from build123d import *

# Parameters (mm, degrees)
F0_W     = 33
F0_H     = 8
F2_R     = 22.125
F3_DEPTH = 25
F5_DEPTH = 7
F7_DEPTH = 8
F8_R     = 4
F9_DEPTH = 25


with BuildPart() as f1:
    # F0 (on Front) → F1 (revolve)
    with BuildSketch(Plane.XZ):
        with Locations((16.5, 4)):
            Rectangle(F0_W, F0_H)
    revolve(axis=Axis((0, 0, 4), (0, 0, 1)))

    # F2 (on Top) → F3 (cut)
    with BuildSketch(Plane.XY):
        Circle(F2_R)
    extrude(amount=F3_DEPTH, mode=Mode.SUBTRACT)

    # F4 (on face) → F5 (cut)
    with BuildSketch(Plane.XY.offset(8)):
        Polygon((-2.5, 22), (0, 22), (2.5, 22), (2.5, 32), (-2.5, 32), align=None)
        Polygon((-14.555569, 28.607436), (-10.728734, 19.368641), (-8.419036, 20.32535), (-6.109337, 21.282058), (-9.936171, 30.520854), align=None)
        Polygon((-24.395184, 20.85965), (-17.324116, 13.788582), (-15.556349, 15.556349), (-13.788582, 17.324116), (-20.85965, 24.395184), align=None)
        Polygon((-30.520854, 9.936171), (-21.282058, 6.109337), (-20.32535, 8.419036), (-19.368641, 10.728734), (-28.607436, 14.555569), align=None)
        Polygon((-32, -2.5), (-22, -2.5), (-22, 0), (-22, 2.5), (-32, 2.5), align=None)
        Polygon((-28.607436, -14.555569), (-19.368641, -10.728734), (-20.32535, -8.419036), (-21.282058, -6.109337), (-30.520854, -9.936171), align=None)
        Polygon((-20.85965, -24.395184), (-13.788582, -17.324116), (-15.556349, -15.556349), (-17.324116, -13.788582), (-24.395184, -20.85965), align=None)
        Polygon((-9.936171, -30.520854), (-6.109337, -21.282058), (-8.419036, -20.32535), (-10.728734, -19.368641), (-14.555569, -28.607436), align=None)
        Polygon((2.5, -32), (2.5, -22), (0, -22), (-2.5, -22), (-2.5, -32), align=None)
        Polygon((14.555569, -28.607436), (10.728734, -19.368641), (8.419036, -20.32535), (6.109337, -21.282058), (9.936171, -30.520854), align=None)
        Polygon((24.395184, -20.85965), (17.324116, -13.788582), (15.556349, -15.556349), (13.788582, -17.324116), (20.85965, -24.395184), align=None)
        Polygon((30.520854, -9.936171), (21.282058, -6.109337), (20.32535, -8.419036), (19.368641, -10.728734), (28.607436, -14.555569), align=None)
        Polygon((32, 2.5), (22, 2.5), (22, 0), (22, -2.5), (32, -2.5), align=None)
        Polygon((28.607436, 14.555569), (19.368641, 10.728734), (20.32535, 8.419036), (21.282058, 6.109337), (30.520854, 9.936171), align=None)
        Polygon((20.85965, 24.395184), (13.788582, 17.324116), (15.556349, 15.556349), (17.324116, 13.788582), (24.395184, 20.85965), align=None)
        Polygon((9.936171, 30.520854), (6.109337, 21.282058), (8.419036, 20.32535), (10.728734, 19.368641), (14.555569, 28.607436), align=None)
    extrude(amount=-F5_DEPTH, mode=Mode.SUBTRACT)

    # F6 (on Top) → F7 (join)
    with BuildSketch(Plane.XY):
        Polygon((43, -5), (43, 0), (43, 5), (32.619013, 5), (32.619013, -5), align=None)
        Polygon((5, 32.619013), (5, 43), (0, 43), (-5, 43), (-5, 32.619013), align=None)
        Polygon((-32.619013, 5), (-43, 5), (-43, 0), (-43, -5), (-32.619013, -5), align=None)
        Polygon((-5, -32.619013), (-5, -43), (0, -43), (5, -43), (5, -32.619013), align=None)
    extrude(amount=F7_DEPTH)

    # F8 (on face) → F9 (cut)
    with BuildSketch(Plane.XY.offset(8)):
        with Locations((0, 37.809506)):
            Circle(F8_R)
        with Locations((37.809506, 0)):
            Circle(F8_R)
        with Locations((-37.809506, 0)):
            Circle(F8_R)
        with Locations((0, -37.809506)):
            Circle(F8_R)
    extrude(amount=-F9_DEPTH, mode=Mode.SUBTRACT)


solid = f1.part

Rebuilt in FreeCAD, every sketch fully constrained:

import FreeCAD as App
import Part
import Sketcher
from FreeCAD import Vector
Q = App.Units.Quantity

doc = App.newDocument("Part")
body = doc.addObject("PartDesign::Body", "Body")

sketch1 = body.newObject("Sketcher::SketchObject", "Sketch")
sketch1.AttachmentSupport = (doc.getObject("XZ_Plane"), [""])
sketch1.MapMode = "FlatFace"
sketch1.addGeometry(Part.LineSegment(Vector(0, 8, 0), Vector(0, 0, 0)), False)
sketch1.addGeometry(Part.LineSegment(Vector(0, 0, 0), Vector(33, 0, 0)), False)
sketch1.addGeometry(Part.LineSegment(Vector(33, 0, 0), Vector(33, 8, 0)), False)
sketch1.addGeometry(Part.LineSegment(Vector(33, 8, 0), Vector(0, 8, 0)), False)
sketch1.addConstraint(Sketcher.Constraint("Coincident", 0, 2, 1, 1))
sketch1.addConstraint(Sketcher.Constraint("Coincident", 1, 2, 2, 1))
sketch1.addConstraint(Sketcher.Constraint("Coincident", 2, 2, 3, 1))
sketch1.addConstraint(Sketcher.Constraint("Coincident", 3, 2, 0, 1))
sketch1.addConstraint(Sketcher.Constraint("Vertical", 0))
sketch1.addConstraint(Sketcher.Constraint("Horizontal", 1))
sketch1.addConstraint(Sketcher.Constraint("Vertical", 2))
sketch1.addConstraint(Sketcher.Constraint("Horizontal", 3))
sketch1.addConstraint(Sketcher.Constraint("Coincident", 0, 2, -1, 1))
sketch1.addConstraint(Sketcher.Constraint("DistanceX", 1, 1, 1, 2, Q("33 mm")))
sketch1.addConstraint(Sketcher.Constraint("DistanceY", 0, 2, 0, 1, Q("8 mm")))
revolution = body.newObject("PartDesign::Revolution", "Revolution")
revolution.Profile = sketch1
revolution.ReferenceAxis = (sketch1, ["V_Axis"])
revolution.Angle = 360

sketch2 = body.newObject("Sketcher::SketchObject", "Sketch001")
sketch2.AttachmentSupport = (doc.getObject("XY_Plane"), [""])
sketch2.MapMode = "FlatFace"
sketch2.addGeometry(Part.Circle(Vector(0, 0, 0), Vector(0, 0, 1), 22.125), False)
sketch2.addConstraint(Sketcher.Constraint("Coincident", 0, 3, -1, 1))
sketch2.addConstraint(Sketcher.Constraint("Diameter", 0, Q("44.25 mm")))
pocket1 = body.newObject("PartDesign::Pocket", "Pocket")
pocket1.Profile = sketch2
pocket1.Length = 25
pocket1.Reversed = True

sketch3 = body.newObject("Sketcher::SketchObject", "Sketch002")
sketch3.AttachmentSupport = (doc.getObject("XY_Plane"), [""])
sketch3.MapMode = "FlatFace"
sketch3.AttachmentOffset = App.Placement(Vector(0, 0, 8), App.Rotation())
sketch3.addGeometry(Part.LineSegment(Vector(-2.5, 22, 0), Vector(2.5, 22, 0)), False)
sketch3.addGeometry(Part.LineSegment(Vector(2.5, 22, 0), Vector(2.5, 32, 0)), False)
sketch3.addGeometry(Part.LineSegment(Vector(2.5, 32, 0), Vector(-2.5, 32, 0)), False)
sketch3.addGeometry(Part.LineSegment(Vector(-2.5, 32, 0), Vector(-2.5, 22, 0)), False)
sketch3.addGeometry(Part.LineSegment(Vector(-14.555569, 28.607436, 0), Vector(-10.728734, 19.368641, 0)), False)
sketch3.addGeometry(Part.LineSegment(Vector(-10.728734, 19.368641, 0), Vector(-8.419036, 20.32535, 0)), False)
sketch3.addGeometry(Part.LineSegment(Vector(-8.419036, 20.32535, 0), Vector(-6.109337, 21.282058, 0)), False)
sketch3.addGeometry(Part.LineSegment(Vector(-6.109337, 21.282058, 0), Vector(-9.936171, 30.520854, 0)), False)
sketch3.addGeometry(Part.LineSegment(Vector(-9.936171, 30.520854, 0), Vector(-14.555569, 28.607436, 0)), False)
sketch3.addGeometry(Part.LineSegment(Vector(-24.395184, 20.85965, 0), Vector(-17.324116, 13.788582, 0)), False)
sketch3.addGeometry(Part.LineSegment(Vector(-17.324116, 13.788582, 0), Vector(-13.788582, 17.324116, 0)), False)
sketch3.addGeometry(Part.LineSegment(Vector(-13.788582, 17.324116, 0), Vector(-20.85965, 24.395184, 0)), False)
sketch3.addGeometry(Part.LineSegment(Vector(-20.85965, 24.395184, 0), Vector(-24.395184, 20.85965, 0)), False)
sketch3.addGeometry(Part.LineSegment(Vector(-30.520854, 9.936171, 0), Vector(-21.282058, 6.109337, 0)), False)
sketch3.addGeometry(Part.LineSegment(Vector(-21.282058, 6.109337, 0), Vector(-20.32535, 8.419036, 0)), False)
sketch3.addGeometry(Part.LineSegment(Vector(-20.32535, 8.419036, 0), Vector(-19.368641, 10.728734, 0)), False)
sketch3.addGeometry(Part.LineSegment(Vector(-19.368641, 10.728734, 0), Vector(-28.607436, 14.555569, 0)), False)
sketch3.addGeometry(Part.LineSegment(Vector(-28.607436, 14.555569, 0), Vector(-30.520854, 9.936171, 0)), False)
sketch3.addGeometry(Part.LineSegment(Vector(-32, -2.5, 0), Vector(-22, -2.5, 0)), False)
sketch3.addGeometry(Part.LineSegment(Vector(-22, -2.5, 0), Vector(-22, 2.5, 0)), False)
sketch3.addGeometry(Part.LineSegment(Vector(-22, 2.5, 0), Vector(-32, 2.5, 0)), False)
sketch3.addGeometry(Part.LineSegment(Vector(-32, 2.5, 0), Vector(-32, -2.5, 0)), False)
sketch3.addGeometry(Part.LineSegment(Vector(-28.607436, -14.555569, 0), Vector(-19.368641, -10.728734, 0)), False)
sketch3.addGeometry(Part.LineSegment(Vector(-19.368641, -10.728734, 0), Vector(-20.32535, -8.419036, 0)), False)
sketch3.addGeometry(Part.LineSegment(Vector(-20.32535, -8.419036, 0), Vector(-21.282058, -6.109337, 0)), False)
sketch3.addGeometry(Part.LineSegment(Vector(-21.282058, -6.109337, 0), Vector(-30.520854, -9.936171, 0)), False)
sketch3.addGeometry(Part.LineSegment(Vector(-30.520854, -9.936171, 0), Vector(-28.607436, -14.555569, 0)), False)
sketch3.addGeometry(Part.LineSegment(Vector(-20.85965, -24.395184, 0), Vector(-13.788582, -17.324116, 0)), False)
sketch3.addGeometry(Part.LineSegment(Vector(-13.788582, -17.324116, 0), Vector(-17.324116, -13.788582, 0)), False)
sketch3.addGeometry(Part.LineSegment(Vector(-17.324116, -13.788582, 0), Vector(-24.395184, -20.85965, 0)), False)
sketch3.addGeometry(Part.LineSegment(Vector(-24.395184, -20.85965, 0), Vector(-20.85965, -24.395184, 0)), False)
sketch3.addGeometry(Part.LineSegment(Vector(-9.936171, -30.520854, 0), Vector(-6.109337, -21.282058, 0)), False)
sketch3.addGeometry(Part.LineSegment(Vector(-6.109337, -21.282058, 0), Vector(-8.419036, -20.32535, 0)), False)
sketch3.addGeometry(Part.LineSegment(Vector(-8.419036, -20.32535, 0), Vector(-10.728734, -19.368641, 0)), False)
sketch3.addGeometry(Part.LineSegment(Vector(-10.728734, -19.368641, 0), Vector(-14.555569, -28.607436, 0)), False)
sketch3.addGeometry(Part.LineSegment(Vector(-14.555569, -28.607436, 0), Vector(-9.936171, -30.520854, 0)), False)
sketch3.addGeometry(Part.LineSegment(Vector(2.5, -32, 0), Vector(2.5, -22, 0)), False)
sketch3.addGeometry(Part.LineSegment(Vector(2.5, -22, 0), Vector(-2.5, -22, 0)), False)
sketch3.addGeometry(Part.LineSegment(Vector(-2.5, -22, 0), Vector(-2.5, -32, 0)), False)
sketch3.addGeometry(Part.LineSegment(Vector(-2.5, -32, 0), Vector(2.5, -32, 0)), False)
sketch3.addGeometry(Part.LineSegment(Vector(14.555569, -28.607436, 0), Vector(10.728734, -19.368641, 0)), False)
sketch3.addGeometry(Part.LineSegment(Vector(10.728734, -19.368641, 0), Vector(8.419036, -20.32535, 0)), False)
sketch3.addGeometry(Part.LineSegment(Vector(8.419036, -20.32535, 0), Vector(6.109337, -21.282058, 0)), False)
sketch3.addGeometry(Part.LineSegment(Vector(6.109337, -21.282058, 0), Vector(9.936171, -30.520854, 0)), False)
sketch3.addGeometry(Part.LineSegment(Vector(9.936171, -30.520854, 0), Vector(14.555569, -28.607436, 0)), False)
sketch3.addGeometry(Part.LineSegment(Vector(24.395184, -20.85965, 0), Vector(17.324116, -13.788582, 0)), False)
sketch3.addGeometry(Part.LineSegment(Vector(17.324116, -13.788582, 0), Vector(13.788582, -17.324116, 0)), False)
sketch3.addGeometry(Part.LineSegment(Vector(13.788582, -17.324116, 0), Vector(20.85965, -24.395184, 0)), False)
sketch3.addGeometry(Part.LineSegment(Vector(20.85965, -24.395184, 0), Vector(24.395184, -20.85965, 0)), False)
sketch3.addGeometry(Part.LineSegment(Vector(30.520854, -9.936171, 0), Vector(21.282058, -6.109337, 0)), False)
sketch3.addGeometry(Part.LineSegment(Vector(21.282058, -6.109337, 0), Vector(20.32535, -8.419036, 0)), False)
sketch3.addGeometry(Part.LineSegment(Vector(20.32535, -8.419036, 0), Vector(19.368641, -10.728734, 0)), False)
sketch3.addGeometry(Part.LineSegment(Vector(19.368641, -10.728734, 0), Vector(28.607436, -14.555569, 0)), False)
sketch3.addGeometry(Part.LineSegment(Vector(28.607436, -14.555569, 0), Vector(30.520854, -9.936171, 0)), False)
sketch3.addGeometry(Part.LineSegment(Vector(32, 2.5, 0), Vector(22, 2.5, 0)), False)
sketch3.addGeometry(Part.LineSegment(Vector(22, 2.5, 0), Vector(22, -2.5, 0)), False)
sketch3.addGeometry(Part.LineSegment(Vector(22, -2.5, 0), Vector(32, -2.5, 0)), False)
sketch3.addGeometry(Part.LineSegment(Vector(32, -2.5, 0), Vector(32, 2.5, 0)), False)
sketch3.addGeometry(Part.LineSegment(Vector(28.607436, 14.555569, 0), Vector(19.368641, 10.728734, 0)), False)
sketch3.addGeometry(Part.LineSegment(Vector(19.368641, 10.728734, 0), Vector(20.32535, 8.419036, 0)), False)
sketch3.addGeometry(Part.LineSegment(Vector(20.32535, 8.419036, 0), Vector(21.282058, 6.109337, 0)), False)
sketch3.addGeometry(Part.LineSegment(Vector(21.282058, 6.109337, 0), Vector(30.520854, 9.936171, 0)), False)
sketch3.addGeometry(Part.LineSegment(Vector(30.520854, 9.936171, 0), Vector(28.607436, 14.555569, 0)), False)
sketch3.addGeometry(Part.LineSegment(Vector(20.85965, 24.395184, 0), Vector(13.788582, 17.324116, 0)), False)
sketch3.addGeometry(Part.LineSegment(Vector(13.788582, 17.324116, 0), Vector(17.324116, 13.788582, 0)), False)
sketch3.addGeometry(Part.LineSegment(Vector(17.324116, 13.788582, 0), Vector(24.395184, 20.85965, 0)), False)
sketch3.addGeometry(Part.LineSegment(Vector(24.395184, 20.85965, 0), Vector(20.85965, 24.395184, 0)), False)
sketch3.addGeometry(Part.LineSegment(Vector(9.936171, 30.520854, 0), Vector(6.109337, 21.282058, 0)), False)
sketch3.addGeometry(Part.LineSegment(Vector(6.109337, 21.282058, 0), Vector(8.419036, 20.32535, 0)), False)
sketch3.addGeometry(Part.LineSegment(Vector(8.419036, 20.32535, 0), Vector(10.728734, 19.368641, 0)), False)
sketch3.addGeometry(Part.LineSegment(Vector(10.728734, 19.368641, 0), Vector(14.555569, 28.607436, 0)), False)
sketch3.addGeometry(Part.LineSegment(Vector(14.555569, 28.607436, 0), Vector(9.936171, 30.520854, 0)), False)
sketch3.addConstraint(Sketcher.Constraint("Coincident", 0, 2, 1, 1))
sketch3.addConstraint(Sketcher.Constraint("Coincident", 1, 2, 2, 1))
sketch3.addConstraint(Sketcher.Constraint("Coincident", 2, 2, 3, 1))
sketch3.addConstraint(Sketcher.Constraint("Coincident", 3, 2, 0, 1))
sketch3.addConstraint(Sketcher.Constraint("Coincident", 4, 2, 5, 1))
sketch3.addConstraint(Sketcher.Constraint("Coincident", 5, 2, 6, 1))
sketch3.addConstraint(Sketcher.Constraint("Coincident", 6, 2, 7, 1))
sketch3.addConstraint(Sketcher.Constraint("Coincident", 7, 2, 8, 1))
sketch3.addConstraint(Sketcher.Constraint("Coincident", 8, 2, 4, 1))
sketch3.addConstraint(Sketcher.Constraint("Coincident", 9, 2, 10, 1))
sketch3.addConstraint(Sketcher.Constraint("Coincident", 10, 2, 11, 1))
sketch3.addConstraint(Sketcher.Constraint("Coincident", 11, 2, 12, 1))
sketch3.addConstraint(Sketcher.Constraint("Coincident", 12, 2, 9, 1))
sketch3.addConstraint(Sketcher.Constraint("Coincident", 13, 2, 14, 1))
sketch3.addConstraint(Sketcher.Constraint("Coincident", 14, 2, 15, 1))
sketch3.addConstraint(Sketcher.Constraint("Coincident", 15, 2, 16, 1))
sketch3.addConstraint(Sketcher.Constraint("Coincident", 16, 2, 17, 1))
sketch3.addConstraint(Sketcher.Constraint("Coincident", 17, 2, 13, 1))
sketch3.addConstraint(Sketcher.Constraint("Coincident", 18, 2, 19, 1))
sketch3.addConstraint(Sketcher.Constraint("Coincident", 19, 2, 20, 1))
sketch3.addConstraint(Sketcher.Constraint("Coincident", 20, 2, 21, 1))
sketch3.addConstraint(Sketcher.Constraint("Coincident", 21, 2, 18, 1))
sketch3.addConstraint(Sketcher.Constraint("Coincident", 22, 2, 23, 1))
sketch3.addConstraint(Sketcher.Constraint("Coincident", 23, 2, 24, 1))
sketch3.addConstraint(Sketcher.Constraint("Coincident", 24, 2, 25, 1))
sketch3.addConstraint(Sketcher.Constraint("Coincident", 25, 2, 26, 1))
sketch3.addConstraint(Sketcher.Constraint("Coincident", 26, 2, 22, 1))
sketch3.addConstraint(Sketcher.Constraint("Coincident", 27, 2, 28, 1))
sketch3.addConstraint(Sketcher.Constraint("Coincident", 28, 2, 29, 1))
sketch3.addConstraint(Sketcher.Constraint("Coincident", 29, 2, 30, 1))
sketch3.addConstraint(Sketcher.Constraint("Coincident", 30, 2, 27, 1))
sketch3.addConstraint(Sketcher.Constraint("Coincident", 31, 2, 32, 1))
sketch3.addConstraint(Sketcher.Constraint("Coincident", 32, 2, 33, 1))
sketch3.addConstraint(Sketcher.Constraint("Coincident", 33, 2, 34, 1))
sketch3.addConstraint(Sketcher.Constraint("Coincident", 34, 2, 35, 1))
sketch3.addConstraint(Sketcher.Constraint("Coincident", 35, 2, 31, 1))
sketch3.addConstraint(Sketcher.Constraint("Coincident", 36, 2, 37, 1))
sketch3.addConstraint(Sketcher.Constraint("Coincident", 37, 2, 38, 1))
sketch3.addConstraint(Sketcher.Constraint("Coincident", 38, 2, 39, 1))
sketch3.addConstraint(Sketcher.Constraint("Coincident", 39, 2, 36, 1))
sketch3.addConstraint(Sketcher.Constraint("Coincident", 40, 2, 41, 1))
sketch3.addConstraint(Sketcher.Constraint("Coincident", 41, 2, 42, 1))
sketch3.addConstraint(Sketcher.Constraint("Coincident", 42, 2, 43, 1))
sketch3.addConstraint(Sketcher.Constraint("Coincident", 43, 2, 44, 1))
sketch3.addConstraint(Sketcher.Constraint("Coincident", 44, 2, 40, 1))
sketch3.addConstraint(Sketcher.Constraint("Coincident", 45, 2, 46, 1))
sketch3.addConstraint(Sketcher.Constraint("Coincident", 46, 2, 47, 1))
sketch3.addConstraint(Sketcher.Constraint("Coincident", 47, 2, 48, 1))
sketch3.addConstraint(Sketcher.Constraint("Coincident", 48, 2, 45, 1))
sketch3.addConstraint(Sketcher.Constraint("Coincident", 49, 2, 50, 1))
sketch3.addConstraint(Sketcher.Constraint("Coincident", 50, 2, 51, 1))
sketch3.addConstraint(Sketcher.Constraint("Coincident", 51, 2, 52, 1))
sketch3.addConstraint(Sketcher.Constraint("Coincident", 52, 2, 53, 1))
sketch3.addConstraint(Sketcher.Constraint("Coincident", 53, 2, 49, 1))
sketch3.addConstraint(Sketcher.Constraint("Coincident", 54, 2, 55, 1))
sketch3.addConstraint(Sketcher.Constraint("Coincident", 55, 2, 56, 1))
sketch3.addConstraint(Sketcher.Constraint("Coincident", 56, 2, 57, 1))
sketch3.addConstraint(Sketcher.Constraint("Coincident", 57, 2, 54, 1))
sketch3.addConstraint(Sketcher.Constraint("Coincident", 58, 2, 59, 1))
sketch3.addConstraint(Sketcher.Constraint("Coincident", 59, 2, 60, 1))
sketch3.addConstraint(Sketcher.Constraint("Coincident", 60, 2, 61, 1))
sketch3.addConstraint(Sketcher.Constraint("Coincident", 61, 2, 62, 1))
sketch3.addConstraint(Sketcher.Constraint("Coincident", 62, 2, 58, 1))
sketch3.addConstraint(Sketcher.Constraint("Coincident", 63, 2, 64, 1))
sketch3.addConstraint(Sketcher.Constraint("Coincident", 64, 2, 65, 1))
sketch3.addConstraint(Sketcher.Constraint("Coincident", 65, 2, 66, 1))
sketch3.addConstraint(Sketcher.Constraint("Coincident", 66, 2, 63, 1))
sketch3.addConstraint(Sketcher.Constraint("Coincident", 67, 2, 68, 1))
sketch3.addConstraint(Sketcher.Constraint("Coincident", 68, 2, 69, 1))
sketch3.addConstraint(Sketcher.Constraint("Coincident", 69, 2, 70, 1))
sketch3.addConstraint(Sketcher.Constraint("Coincident", 70, 2, 71, 1))
sketch3.addConstraint(Sketcher.Constraint("Coincident", 71, 2, 67, 1))
sketch3.addConstraint(Sketcher.Constraint("Horizontal", 0))
sketch3.addConstraint(Sketcher.Constraint("Vertical", 1))
sketch3.addConstraint(Sketcher.Constraint("Horizontal", 2))
sketch3.addConstraint(Sketcher.Constraint("Vertical", 3))
sketch3.addConstraint(Sketcher.Constraint("Horizontal", 18))
sketch3.addConstraint(Sketcher.Constraint("Vertical", 19))
sketch3.addConstraint(Sketcher.Constraint("Horizontal", 20))
sketch3.addConstraint(Sketcher.Constraint("Vertical", 21))
sketch3.addConstraint(Sketcher.Constraint("Vertical", 36))
sketch3.addConstraint(Sketcher.Constraint("Horizontal", 37))
sketch3.addConstraint(Sketcher.Constraint("Vertical", 38))
sketch3.addConstraint(Sketcher.Constraint("Horizontal", 39))
sketch3.addConstraint(Sketcher.Constraint("Horizontal", 54))
sketch3.addConstraint(Sketcher.Constraint("Vertical", 55))
sketch3.addConstraint(Sketcher.Constraint("Horizontal", 56))
sketch3.addConstraint(Sketcher.Constraint("Vertical", 57))
sketch3.addConstraint(Sketcher.Constraint("Symmetric", 3, 2, 36, 2, -1, 1))
sketch3.addConstraint(Sketcher.Constraint("Symmetric", 1, 2, 38, 2, -1, 1))
sketch3.addConstraint(Sketcher.Constraint("Symmetric", 4, 2, 40, 2, -1, 1))
sketch3.addConstraint(Sketcher.Constraint("Symmetric", 5, 2, 41, 2, -1, 1))
sketch3.addConstraint(Sketcher.Constraint("Symmetric", 6, 2, 42, 2, -1, 1))
sketch3.addConstraint(Sketcher.Constraint("Symmetric", 7, 2, 43, 2, -1, 1))
sketch3.addConstraint(Sketcher.Constraint("Symmetric", 8, 2, 44, 2, -1, 1))
sketch3.addConstraint(Sketcher.Constraint("Symmetric", 9, 2, 45, 2, -1, 1))
sketch3.addConstraint(Sketcher.Constraint("Symmetric", 10, 2, 46, 2, -1, 1))
sketch3.addConstraint(Sketcher.Constraint("Symmetric", 11, 2, 47, 2, -1, 1))
sketch3.addConstraint(Sketcher.Constraint("Symmetric", 12, 2, 48, 2, -1, 1))
sketch3.addConstraint(Sketcher.Constraint("Symmetric", 13, 2, 49, 2, -1, 1))
sketch3.addConstraint(Sketcher.Constraint("Symmetric", 14, 2, 50, 2, -1, 1))
sketch3.addConstraint(Sketcher.Constraint("Symmetric", 15, 2, 51, 2, -1, 1))
sketch3.addConstraint(Sketcher.Constraint("Symmetric", 16, 2, 52, 2, -1, 1))
sketch3.addConstraint(Sketcher.Constraint("Symmetric", 17, 2, 53, 2, -1, 1))
sketch3.addConstraint(Sketcher.Constraint("Symmetric", 18, 2, 54, 2, -1, 1))
sketch3.addConstraint(Sketcher.Constraint("Symmetric", 20, 2, 56, 2, -1, 1))
sketch3.addConstraint(Sketcher.Constraint("Symmetric", 22, 2, 58, 2, -1, 1))
sketch3.addConstraint(Sketcher.Constraint("Symmetric", 23, 2, 59, 2, -1, 1))
sketch3.addConstraint(Sketcher.Constraint("Symmetric", 24, 2, 60, 2, -1, 1))
sketch3.addConstraint(Sketcher.Constraint("Symmetric", 25, 2, 61, 2, -1, 1))
sketch3.addConstraint(Sketcher.Constraint("Symmetric", 26, 2, 62, 2, -1, 1))
sketch3.addConstraint(Sketcher.Constraint("Symmetric", 27, 2, 63, 2, -1, 1))
sketch3.addConstraint(Sketcher.Constraint("Symmetric", 28, 2, 64, 2, -1, 1))
sketch3.addConstraint(Sketcher.Constraint("Symmetric", 29, 2, 65, 2, -1, 1))
sketch3.addConstraint(Sketcher.Constraint("Symmetric", 30, 2, 66, 2, -1, 1))
sketch3.addConstraint(Sketcher.Constraint("Symmetric", 31, 2, 67, 2, -1, 1))
sketch3.addConstraint(Sketcher.Constraint("Symmetric", 32, 2, 68, 2, -1, 1))
sketch3.addConstraint(Sketcher.Constraint("Symmetric", 33, 2, 69, 2, -1, 1))
sketch3.addConstraint(Sketcher.Constraint("Symmetric", 34, 2, 70, 2, -1, 1))
sketch3.addConstraint(Sketcher.Constraint("Symmetric", 35, 2, 71, 2, -1, 1))
sketch3.addConstraint(Sketcher.Constraint("Symmetric", 33, 2, 40, 2, -2))
sketch3.addConstraint(Sketcher.Constraint("Symmetric", 32, 2, 41, 2, -2))
sketch3.addConstraint(Sketcher.Constraint("Symmetric", 31, 2, 42, 2, -2))
sketch3.addConstraint(Sketcher.Constraint("Symmetric", 35, 2, 43, 2, -2))
sketch3.addConstraint(Sketcher.Constraint("Symmetric", 34, 2, 44, 2, -2))
sketch3.addConstraint(Sketcher.Constraint("Symmetric", 28, 2, 45, 2, -2))
sketch3.addConstraint(Sketcher.Constraint("Symmetric", 27, 2, 46, 2, -2))
sketch3.addConstraint(Sketcher.Constraint("Symmetric", 30, 2, 47, 2, -2))
sketch3.addConstraint(Sketcher.Constraint("Symmetric", 29, 2, 48, 2, -2))
sketch3.addConstraint(Sketcher.Constraint("Symmetric", 24, 2, 49, 2, -2))
sketch3.addConstraint(Sketcher.Constraint("Symmetric", 23, 2, 50, 2, -2))
sketch3.addConstraint(Sketcher.Constraint("Symmetric", 22, 2, 51, 2, -2))
sketch3.addConstraint(Sketcher.Constraint("Symmetric", 26, 2, 52, 2, -2))
sketch3.addConstraint(Sketcher.Constraint("Symmetric", 25, 2, 53, 2, -2))
sketch3.addConstraint(Sketcher.Constraint("Perpendicular", 4, 5))
sketch3.addConstraint(Sketcher.Constraint("Parallel", 5, 6))
sketch3.addConstraint(Sketcher.Constraint("Perpendicular", 6, 7))
sketch3.addConstraint(Sketcher.Constraint("Perpendicular", 7, 8))
sketch3.addConstraint(Sketcher.Constraint("Perpendicular", 9, 10))
sketch3.addConstraint(Sketcher.Constraint("Perpendicular", 10, 11))
sketch3.addConstraint(Sketcher.Constraint("Perpendicular", 11, 12))
sketch3.addConstraint(Sketcher.Constraint("Perpendicular", 13, 14))
sketch3.addConstraint(Sketcher.Constraint("Parallel", 14, 15))
sketch3.addConstraint(Sketcher.Constraint("Perpendicular", 15, 16))
sketch3.addConstraint(Sketcher.Constraint("Perpendicular", 16, 17))
sketch3.addConstraint(Sketcher.Constraint("Parallel", 8, 22))
sketch3.addConstraint(Sketcher.Constraint("Parallel", 12, 27))
sketch3.addConstraint(Sketcher.Constraint("Horizontal", 20, 2, 54, 2))
sketch3.addConstraint(Sketcher.Constraint("Vertical", 1, 2, 36, 2))
sketch3.addConstraint(Sketcher.Constraint("Equal", 56, 1))
sketch3.addConstraint(Sketcher.Constraint("Equal", 39, 19))
sketch3.addConstraint(Sketcher.Constraint("Equal", 5, 6))
sketch3.addConstraint(Sketcher.Constraint("Equal", 7, 9))
sketch3.addConstraint(Sketcher.Constraint("Equal", 8, 10))
sketch3.addConstraint(Sketcher.Constraint("Equal", 11, 13))
sketch3.addConstraint(Sketcher.Constraint("Equal", 6, 14))
sketch3.addConstraint(Sketcher.Constraint("Equal", 14, 15))
sketch3.addConstraint(Sketcher.Constraint("DistanceX", 0, 1, 0, 2, Q("5 mm")))
sketch3.addConstraint(Sketcher.Constraint("DistanceX", 18, 1, 18, 2, Q("10 mm")))
sketch3.addConstraint(Sketcher.Constraint("Distance", 4, Q("10 mm")))
sketch3.addConstraint(Sketcher.Constraint("Distance", 8, Q("5.000001 mm")))
sketch3.addConstraint(Sketcher.Constraint("DistanceY", -1, 1, 0, 2, Q("22 mm")))
sketch3.addConstraint(Sketcher.Constraint("DistanceX", 18, 2, -1, 1, Q("22 mm")))
sketch3.addConstraint(Sketcher.Constraint("Angle", 4, Q("-67.499996 deg")))
sketch3.addConstraint(Sketcher.Constraint("DistanceY", -1, 1, 4, 2, Q("19.368641 mm")))
sketch3.addConstraint(Sketcher.Constraint("DistanceX", 7, 2, -1, 1, Q("9.936171 mm")))
sketch3.addConstraint(Sketcher.Constraint("DistanceX", 11, 2, -1, 1, Q("20.85965 mm")))
sketch3.addConstraint(Sketcher.Constraint("DistanceY", -1, 1, 12, 2, Q("20.85965 mm")))
sketch3.addConstraint(Sketcher.Constraint("DistanceX", 14, 2, -1, 1, Q("20.32535 mm")))
sketch3.addConstraint(Sketcher.Constraint("DistanceY", -1, 1, 16, 2, Q("14.555569 mm")))
pocket2 = body.newObject("PartDesign::Pocket", "Pocket001")
pocket2.Profile = sketch3
pocket2.Length = 7

sketch4 = body.newObject("Sketcher::SketchObject", "Sketch003")
sketch4.AttachmentSupport = (doc.getObject("XY_Plane"), [""])
sketch4.MapMode = "FlatFace"
sketch4.addGeometry(Part.LineSegment(Vector(43, -5, 0), Vector(43, 5, 0)), False)
sketch4.addGeometry(Part.LineSegment(Vector(43, 5, 0), Vector(32.619013, 5, 0)), False)
sketch4.addGeometry(Part.LineSegment(Vector(32.619013, 5, 0), Vector(32.619013, -5, 0)), False)
sketch4.addGeometry(Part.LineSegment(Vector(32.619013, -5, 0), Vector(43, -5, 0)), False)
sketch4.addGeometry(Part.LineSegment(Vector(5, 32.619013, 0), Vector(5, 43, 0)), False)
sketch4.addGeometry(Part.LineSegment(Vector(5, 43, 0), Vector(-5, 43, 0)), False)
sketch4.addGeometry(Part.LineSegment(Vector(-5, 43, 0), Vector(-5, 32.619013, 0)), False)
sketch4.addGeometry(Part.LineSegment(Vector(-5, 32.619013, 0), Vector(5, 32.619013, 0)), False)
sketch4.addGeometry(Part.LineSegment(Vector(-32.619013, 5, 0), Vector(-43, 5, 0)), False)
sketch4.addGeometry(Part.LineSegment(Vector(-43, 5, 0), Vector(-43, -5, 0)), False)
sketch4.addGeometry(Part.LineSegment(Vector(-43, -5, 0), Vector(-32.619013, -5, 0)), False)
sketch4.addGeometry(Part.LineSegment(Vector(-32.619013, -5, 0), Vector(-32.619013, 5, 0)), False)
sketch4.addGeometry(Part.LineSegment(Vector(-5, -32.619013, 0), Vector(-5, -43, 0)), False)
sketch4.addGeometry(Part.LineSegment(Vector(-5, -43, 0), Vector(5, -43, 0)), False)
sketch4.addGeometry(Part.LineSegment(Vector(5, -43, 0), Vector(5, -32.619013, 0)), False)
sketch4.addGeometry(Part.LineSegment(Vector(5, -32.619013, 0), Vector(-5, -32.619013, 0)), False)
sketch4.addConstraint(Sketcher.Constraint("Coincident", 0, 2, 1, 1))
sketch4.addConstraint(Sketcher.Constraint("Coincident", 1, 2, 2, 1))
sketch4.addConstraint(Sketcher.Constraint("Coincident", 2, 2, 3, 1))
sketch4.addConstraint(Sketcher.Constraint("Coincident", 3, 2, 0, 1))
sketch4.addConstraint(Sketcher.Constraint("Coincident", 4, 2, 5, 1))
sketch4.addConstraint(Sketcher.Constraint("Coincident", 5, 2, 6, 1))
sketch4.addConstraint(Sketcher.Constraint("Coincident", 6, 2, 7, 1))
sketch4.addConstraint(Sketcher.Constraint("Coincident", 7, 2, 4, 1))
sketch4.addConstraint(Sketcher.Constraint("Coincident", 8, 2, 9, 1))
sketch4.addConstraint(Sketcher.Constraint("Coincident", 9, 2, 10, 1))
sketch4.addConstraint(Sketcher.Constraint("Coincident", 10, 2, 11, 1))
sketch4.addConstraint(Sketcher.Constraint("Coincident", 11, 2, 8, 1))
sketch4.addConstraint(Sketcher.Constraint("Coincident", 12, 2, 13, 1))
sketch4.addConstraint(Sketcher.Constraint("Coincident", 13, 2, 14, 1))
sketch4.addConstraint(Sketcher.Constraint("Coincident", 14, 2, 15, 1))
sketch4.addConstraint(Sketcher.Constraint("Coincident", 15, 2, 12, 1))
sketch4.addConstraint(Sketcher.Constraint("Vertical", 0))
sketch4.addConstraint(Sketcher.Constraint("Horizontal", 1))
sketch4.addConstraint(Sketcher.Constraint("Vertical", 2))
sketch4.addConstraint(Sketcher.Constraint("Horizontal", 3))
sketch4.addConstraint(Sketcher.Constraint("Vertical", 4))
sketch4.addConstraint(Sketcher.Constraint("Horizontal", 5))
sketch4.addConstraint(Sketcher.Constraint("Vertical", 6))
sketch4.addConstraint(Sketcher.Constraint("Horizontal", 7))
sketch4.addConstraint(Sketcher.Constraint("Horizontal", 8))
sketch4.addConstraint(Sketcher.Constraint("Vertical", 9))
sketch4.addConstraint(Sketcher.Constraint("Horizontal", 10))
sketch4.addConstraint(Sketcher.Constraint("Vertical", 11))
sketch4.addConstraint(Sketcher.Constraint("Vertical", 12))
sketch4.addConstraint(Sketcher.Constraint("Horizontal", 13))
sketch4.addConstraint(Sketcher.Constraint("Vertical", 14))
sketch4.addConstraint(Sketcher.Constraint("Horizontal", 15))
sketch4.addConstraint(Sketcher.Constraint("Symmetric", 3, 2, 8, 2, -1, 1))
sketch4.addConstraint(Sketcher.Constraint("Symmetric", 1, 2, 10, 2, -1, 1))
sketch4.addConstraint(Sketcher.Constraint("Symmetric", 4, 2, 12, 2, -1, 1))
sketch4.addConstraint(Sketcher.Constraint("Symmetric", 6, 2, 14, 2, -1, 1))
sketch4.addConstraint(Sketcher.Constraint("Horizontal", 1, 2, 8, 2))
sketch4.addConstraint(Sketcher.Constraint("Vertical", 6, 2, 12, 2))
sketch4.addConstraint(Sketcher.Constraint("Equal", 15, 0))
sketch4.addConstraint(Sketcher.Constraint("Equal", 10, 4))
sketch4.addConstraint(Sketcher.Constraint("DistanceX", 5, 2, 5, 1, Q("10 mm")))
sketch4.addConstraint(Sketcher.Constraint("DistanceX", -1, 1, 0, 2, Q("43 mm")))
sketch4.addConstraint(Sketcher.Constraint("DistanceY", -1, 1, 4, 2, Q("43 mm")))
sketch4.addConstraint(Sketcher.Constraint("DistanceX", 1, 2, 1, 1, Q("10.380987 mm")))
pad1 = body.newObject("PartDesign::Pad", "Pad")
pad1.Profile = sketch4
pad1.Length = 8

sketch5 = body.newObject("Sketcher::SketchObject", "Sketch004")
sketch5.AttachmentSupport = (doc.getObject("XY_Plane"), [""])
sketch5.MapMode = "FlatFace"
sketch5.AttachmentOffset = App.Placement(Vector(0, 0, 8), App.Rotation())
sketch5.addGeometry(Part.Circle(Vector(0, 37.809506, 0), Vector(0, 0, 1), 4), False)
sketch5.addGeometry(Part.Circle(Vector(37.809506, 0, 0), Vector(0, 0, 1), 4), False)
sketch5.addGeometry(Part.Circle(Vector(-37.809506, 0, 0), Vector(0, 0, 1), 4), False)
sketch5.addGeometry(Part.Circle(Vector(0, -37.809506, 0), Vector(0, 0, 1), 4), False)
sketch5.addConstraint(Sketcher.Constraint("Equal", 0, 1))
sketch5.addConstraint(Sketcher.Constraint("Equal", 1, 2))
sketch5.addConstraint(Sketcher.Constraint("Equal", 2, 3))
sketch5.addConstraint(Sketcher.Constraint("Symmetric", 1, 3, 2, 3, -1, 1))
sketch5.addConstraint(Sketcher.Constraint("Symmetric", 0, 3, 3, 3, -1, 1))
sketch5.addConstraint(Sketcher.Constraint("PointOnObject", 0, 3, -2))
sketch5.addConstraint(Sketcher.Constraint("PointOnObject", 1, 3, -1))
sketch5.addConstraint(Sketcher.Constraint("Diameter", 0, Q("8 mm")))
sketch5.addConstraint(Sketcher.Constraint("DistanceX", 2, 3, 1, 3, Q("75.619012 mm")))
sketch5.addConstraint(Sketcher.Constraint("DistanceY", 3, 3, 0, 3, Q("75.619012 mm")))
pocket3 = body.newObject("PartDesign::Pocket", "Pocket002")
pocket3.Profile = sketch5
pocket3.Length = 25

doc.recompute()
